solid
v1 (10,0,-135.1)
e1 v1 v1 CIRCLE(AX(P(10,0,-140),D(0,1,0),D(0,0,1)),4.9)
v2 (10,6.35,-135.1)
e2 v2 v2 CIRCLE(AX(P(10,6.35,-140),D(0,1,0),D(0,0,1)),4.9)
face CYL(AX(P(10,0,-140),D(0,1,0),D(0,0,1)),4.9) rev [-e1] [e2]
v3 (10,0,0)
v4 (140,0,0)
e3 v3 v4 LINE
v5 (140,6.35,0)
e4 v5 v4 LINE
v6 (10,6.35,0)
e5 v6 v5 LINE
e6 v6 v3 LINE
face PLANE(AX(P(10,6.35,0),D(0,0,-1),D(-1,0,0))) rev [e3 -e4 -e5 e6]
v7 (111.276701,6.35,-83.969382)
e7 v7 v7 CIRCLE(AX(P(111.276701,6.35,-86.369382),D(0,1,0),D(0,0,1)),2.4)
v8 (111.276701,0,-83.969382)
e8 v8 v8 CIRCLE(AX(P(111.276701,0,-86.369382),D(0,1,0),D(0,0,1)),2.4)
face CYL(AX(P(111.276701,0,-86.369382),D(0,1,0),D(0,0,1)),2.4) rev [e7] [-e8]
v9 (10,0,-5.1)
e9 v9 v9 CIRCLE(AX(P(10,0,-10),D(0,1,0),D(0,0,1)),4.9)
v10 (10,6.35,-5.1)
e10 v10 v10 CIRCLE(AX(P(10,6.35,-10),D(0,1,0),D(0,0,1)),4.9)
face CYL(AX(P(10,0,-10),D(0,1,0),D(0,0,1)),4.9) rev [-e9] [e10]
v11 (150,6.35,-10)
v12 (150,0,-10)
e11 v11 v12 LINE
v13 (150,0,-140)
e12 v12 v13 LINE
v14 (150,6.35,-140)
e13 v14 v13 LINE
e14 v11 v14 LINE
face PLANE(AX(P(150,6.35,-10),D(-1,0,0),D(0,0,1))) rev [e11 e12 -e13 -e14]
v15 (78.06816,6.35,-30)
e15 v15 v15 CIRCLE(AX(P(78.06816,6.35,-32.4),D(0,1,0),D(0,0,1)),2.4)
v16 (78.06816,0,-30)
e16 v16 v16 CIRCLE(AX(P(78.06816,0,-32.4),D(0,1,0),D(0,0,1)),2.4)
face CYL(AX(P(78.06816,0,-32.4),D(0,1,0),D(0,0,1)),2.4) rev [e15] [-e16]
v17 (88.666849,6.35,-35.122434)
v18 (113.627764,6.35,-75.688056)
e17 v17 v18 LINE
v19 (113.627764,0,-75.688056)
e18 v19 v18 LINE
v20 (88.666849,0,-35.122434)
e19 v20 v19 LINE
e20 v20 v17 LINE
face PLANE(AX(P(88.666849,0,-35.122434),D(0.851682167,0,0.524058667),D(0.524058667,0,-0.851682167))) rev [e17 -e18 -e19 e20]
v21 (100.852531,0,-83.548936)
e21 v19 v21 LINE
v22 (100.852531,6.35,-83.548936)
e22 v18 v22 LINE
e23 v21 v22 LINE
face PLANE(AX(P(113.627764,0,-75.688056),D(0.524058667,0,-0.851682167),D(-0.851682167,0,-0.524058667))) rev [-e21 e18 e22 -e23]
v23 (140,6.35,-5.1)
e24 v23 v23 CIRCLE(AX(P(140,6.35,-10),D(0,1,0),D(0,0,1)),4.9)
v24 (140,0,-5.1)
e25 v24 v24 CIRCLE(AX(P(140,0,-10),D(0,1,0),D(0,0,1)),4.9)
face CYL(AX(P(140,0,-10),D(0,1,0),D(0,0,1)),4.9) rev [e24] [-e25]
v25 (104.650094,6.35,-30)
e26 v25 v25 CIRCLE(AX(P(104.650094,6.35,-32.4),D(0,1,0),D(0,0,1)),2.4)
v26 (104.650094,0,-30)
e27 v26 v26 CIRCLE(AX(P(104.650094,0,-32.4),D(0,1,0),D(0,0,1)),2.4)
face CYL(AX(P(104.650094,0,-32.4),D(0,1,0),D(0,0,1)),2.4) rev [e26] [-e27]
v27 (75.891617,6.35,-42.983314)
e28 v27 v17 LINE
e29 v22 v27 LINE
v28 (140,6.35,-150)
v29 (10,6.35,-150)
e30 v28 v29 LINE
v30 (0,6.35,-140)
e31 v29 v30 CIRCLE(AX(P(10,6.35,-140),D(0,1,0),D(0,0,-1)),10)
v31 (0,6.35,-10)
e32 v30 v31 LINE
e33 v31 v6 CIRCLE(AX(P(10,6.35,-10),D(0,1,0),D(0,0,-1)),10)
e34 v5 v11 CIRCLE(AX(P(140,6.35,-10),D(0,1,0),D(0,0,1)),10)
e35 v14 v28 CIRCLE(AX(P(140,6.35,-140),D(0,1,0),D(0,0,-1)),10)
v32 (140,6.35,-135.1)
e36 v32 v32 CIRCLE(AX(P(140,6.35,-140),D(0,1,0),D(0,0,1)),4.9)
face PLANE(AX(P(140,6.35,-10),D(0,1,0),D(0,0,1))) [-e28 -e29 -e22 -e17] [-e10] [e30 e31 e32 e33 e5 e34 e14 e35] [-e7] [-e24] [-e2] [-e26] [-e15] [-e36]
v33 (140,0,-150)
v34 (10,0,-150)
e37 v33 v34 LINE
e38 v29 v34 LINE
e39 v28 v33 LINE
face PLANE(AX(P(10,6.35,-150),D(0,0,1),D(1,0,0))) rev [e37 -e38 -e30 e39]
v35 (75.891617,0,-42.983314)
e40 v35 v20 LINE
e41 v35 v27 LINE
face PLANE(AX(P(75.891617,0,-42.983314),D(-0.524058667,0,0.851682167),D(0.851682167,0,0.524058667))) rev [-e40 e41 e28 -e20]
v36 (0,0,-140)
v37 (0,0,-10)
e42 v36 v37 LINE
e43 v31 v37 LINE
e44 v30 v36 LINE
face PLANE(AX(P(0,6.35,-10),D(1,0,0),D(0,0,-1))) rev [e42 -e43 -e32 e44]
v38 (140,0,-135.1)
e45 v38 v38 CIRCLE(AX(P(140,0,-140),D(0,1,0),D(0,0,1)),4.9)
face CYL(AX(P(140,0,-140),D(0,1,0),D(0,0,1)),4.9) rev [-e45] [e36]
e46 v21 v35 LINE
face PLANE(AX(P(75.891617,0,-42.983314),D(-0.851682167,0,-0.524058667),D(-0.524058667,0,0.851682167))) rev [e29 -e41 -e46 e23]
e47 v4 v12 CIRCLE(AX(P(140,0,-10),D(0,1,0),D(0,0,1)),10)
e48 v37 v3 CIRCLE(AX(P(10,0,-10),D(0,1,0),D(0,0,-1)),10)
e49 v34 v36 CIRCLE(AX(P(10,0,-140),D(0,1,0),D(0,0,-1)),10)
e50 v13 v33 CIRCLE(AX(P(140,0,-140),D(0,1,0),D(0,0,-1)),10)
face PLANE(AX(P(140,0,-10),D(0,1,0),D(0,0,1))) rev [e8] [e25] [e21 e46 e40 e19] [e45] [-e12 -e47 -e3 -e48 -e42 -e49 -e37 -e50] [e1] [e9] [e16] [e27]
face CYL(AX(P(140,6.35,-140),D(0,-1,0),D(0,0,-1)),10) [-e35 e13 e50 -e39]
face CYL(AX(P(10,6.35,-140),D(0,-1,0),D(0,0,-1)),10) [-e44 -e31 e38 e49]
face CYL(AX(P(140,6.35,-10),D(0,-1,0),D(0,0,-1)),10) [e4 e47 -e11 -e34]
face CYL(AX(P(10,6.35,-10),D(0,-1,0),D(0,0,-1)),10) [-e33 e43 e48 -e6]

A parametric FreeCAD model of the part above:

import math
import FreeCAD as App
import Part
import Sketcher
from FreeCAD import Vector


def add_polygon(sketch, points):
    """Adds a closed chain of lines whose ends are joined by coincident constraints."""
    first, n = sketch.GeometryCount, len(points)
    for a, b in zip(points, points[1:] + points[:1]):
        sketch.addGeometry(Part.LineSegment(App.Vector(*a, 0), App.Vector(*b, 0)), False)
    for i in range(n):
        sketch.addConstraint(Sketcher.Constraint("Coincident", first + i, 2, first + (i + 1) % n, 1))

doc = App.newDocument("Part")
params = doc.addObject("Spreadsheet::Sheet", "Params")
for row, (alias, value) in enumerate([
    ("sketch1_radius", "10 mm"),
    ("sketch1_width", "130 mm"),
    ("pad1_length", "6.35 mm"),
    ("sketch2_diameter", "4.8 mm"),
    ("sketch2_diameter2", "9.8 mm"),
    ("sketch2_length", "15 mm"),
    ("sketch2_length2", "47.63 mm"),
], start=1):
    params.set(f"A{row}", alias)
    params.set(f"B{row}", "=" + value)
    params.setAlias(f"B{row}", alias)

body = doc.addObject("PartDesign::Body", "Body")

sketch1 = body.newObject("Sketcher::SketchObject", "Sketch")
sketch1.AttachmentSupport = (doc.getObject("XZ_Plane"), [""])
sketch1.MapMode = "FlatFace"
sketch1.addGeometry([
    Part.LineSegment(Vector(10, 0, 0), Vector(140, 0, 0)),
    Part.ArcOfCircle(Part.Circle(Vector(140, -10, 0), Vector(0, 0, 1), 10), math.radians(0), math.radians(90)),
    Part.LineSegment(Vector(150, -10, 0), Vector(150, -140, 0)),
    Part.ArcOfCircle(Part.Circle(Vector(140, -140, 0), Vector(0, 0, 1), 10), math.radians(-90), math.radians(0)),
    Part.LineSegment(Vector(140, -150, 0), Vector(10, -150, 0)),
    Part.ArcOfCircle(Part.Circle(Vector(10, -140, 0), Vector(0, 0, 1), 10), math.radians(180), math.radians(270)),
    Part.LineSegment(Vector(0, -140, 0), Vector(0, -10, 0)),
    Part.ArcOfCircle(Part.Circle(Vector(10, -10, 0), Vector(0, 0, 1), 10), math.radians(90), math.radians(180)),
], False)
sketch1.addConstraint([
    Sketcher.Constraint("Tangent", 0, 2, 1, 2),
    Sketcher.Constraint("Tangent", 1, 1, 2, 1),
    Sketcher.Constraint("Tangent", 2, 2, 3, 2),
    Sketcher.Constraint("Tangent", 3, 1, 4, 1),
    Sketcher.Constraint("Tangent", 4, 2, 5, 2),
    Sketcher.Constraint("Tangent", 5, 1, 6, 1),
    Sketcher.Constraint("Tangent", 6, 2, 7, 2),
    Sketcher.Constraint("Tangent", 7, 1, 0, 1),
    Sketcher.Constraint("Horizontal", 0),
    Sketcher.Constraint("Vertical", 2),
    Sketcher.Constraint("Horizontal", 4),
    Sketcher.Constraint("Vertical", 6),
    Sketcher.Constraint("Equal", 1, 3),
    Sketcher.Constraint("Equal", 3, 5),
    Sketcher.Constraint("Equal", 5, 7),
    Sketcher.Constraint("PointOnObject", 0, 2, -1),
    Sketcher.Constraint("PointOnObject", 5, 1, -2),
    Sketcher.Constraint("Equal", 4, 2),
    Sketcher.Constraint("Radius", 1, 10.0),
    Sketcher.Constraint("DistanceX", 0, 1, 0, 2, 130.0),
])
sketch1.setExpression("Constraints[18]", "Params.sketch1_radius")
sketch1.setExpression("Constraints[19]", "Params.sketch1_width")
pad1 = body.newObject("PartDesign::Pad", "Pad")
pad1.Profile = sketch1
pad1.setExpression("Length", "Params.pad1_length")
pad1.Reversed = True

sketch2 = body.newObject("Sketcher::SketchObject", "Sketch001")
sketch2.AttachmentSupport = (doc.getObject("XZ_Plane"), [""])
sketch2.MapMode = "FlatFace"
sketch2.AttachmentOffset = App.Placement(Vector(0, 0, -6.35), App.Rotation())
sketch2.addGeometry(Part.Circle(Vector(78.1, -32.4, 0), Vector(0, 0, 1), 2.4), False)
sketch2.addGeometry(Part.Circle(Vector(104.7, -32.4, 0), Vector(0, 0, 1), 2.4), False)
sketch2.addGeometry(Part.Circle(Vector(111.3, -86.4, 0), Vector(0, 0, 1), 2.4), False)
sketch2.addGeometry(Part.Circle(Vector(10, -140, 0), Vector(0, 0, 1), 4.9), False)
sketch2.addGeometry(Part.Circle(Vector(10, -10, 0), Vector(0, 0, 1), 4.9), False)
sketch2.addGeometry(Part.Circle(Vector(140, -140, 0), Vector(0, 0, 1), 4.9), False)
sketch2.addGeometry(Part.Circle(Vector(140, -10, 0), Vector(0, 0, 1), 4.9), False)
add_polygon(sketch2, [(75.9, -43), (88.7, -35.1), (113.6, -75.7), (100.9, -83.5)])
sketch2.addConstraint([
    Sketcher.Constraint("Equal", 0, 1),
    Sketcher.Constraint("Equal", 1, 2),
    Sketcher.Constraint("Equal", 3, 4),
    Sketcher.Constraint("Equal", 4, 5),
    Sketcher.Constraint("Equal", 5, 6),
    Sketcher.Constraint("Perpendicular", 7, 8),
    Sketcher.Constraint("Perpendicular", 8, 9),
    Sketcher.Constraint("Perpendicular", 9, 10),
    Sketcher.Constraint("Horizontal", 0, 3, 1, 3),
    Sketcher.Constraint("Horizontal", 3, 3, 5, 3),
    Sketcher.Constraint("Horizontal", 4, 3, 6, 3),
    Sketcher.Constraint("Vertical", 3, 3, 4, 3),
    Sketcher.Constraint("Vertical", 5, 3, 6, 3),
    Sketcher.Constraint("Diameter", 0, 4.8),
    Sketcher.Constraint("Diameter", 3, 9.8),
    Sketcher.Constraint("Distance", 7, 15.0),
    Sketcher.Constraint("DistanceX", -1, 1, 3, 3, 10.0),
    Sketcher.Constraint("DistanceY", 3, 3, -1, 1, 140.0),
    Sketcher.Constraint("DistanceY", 4, 3, -1, 1, 10.0),
    Sketcher.Constraint("DistanceX", -1, 1, 5, 3, 140.0),
    Sketcher.Constraint("DistanceY", 0, 3, -1, 1, 32.4),
    Sketcher.Constraint("Distance", 8, 47.63),
    Sketcher.Constraint("DistanceX", -1, 1, 2, 3, 111.276701),
    Sketcher.Constraint("DistanceY", 9, 2, 7, 2, 48.426502),
    Sketcher.Constraint("DistanceX", -1, 1, 0, 3, 78.06816),
    Sketcher.Constraint("DistanceY", 2, 3, -1, 1, 86.369382),
    Sketcher.Constraint("DistanceX", -1, 1, 7, 2, 88.666849),
    Sketcher.Constraint("DistanceX", 1, 3, 8, 2, 8.97767),
    Sketcher.Constraint("DistanceY", 7, 2, -1, 1, 35.122434),
])
sketch2.setExpression("Constraints[17]", "Params.sketch2_diameter")
sketch2.setExpression("Constraints[18]", "Params.sketch2_diameter2")
sketch2.setExpression("Constraints[19]", "Params.sketch2_length")
sketch2.setExpression("Constraints[25]", "Params.sketch2_length2")
pocket1 = body.newObject("PartDesign::Pocket", "Pocket")
pocket1.Profile = sketch2
pocket1.Type = "ThroughAll"
pocket1.Reversed = True

doc.recompute()
